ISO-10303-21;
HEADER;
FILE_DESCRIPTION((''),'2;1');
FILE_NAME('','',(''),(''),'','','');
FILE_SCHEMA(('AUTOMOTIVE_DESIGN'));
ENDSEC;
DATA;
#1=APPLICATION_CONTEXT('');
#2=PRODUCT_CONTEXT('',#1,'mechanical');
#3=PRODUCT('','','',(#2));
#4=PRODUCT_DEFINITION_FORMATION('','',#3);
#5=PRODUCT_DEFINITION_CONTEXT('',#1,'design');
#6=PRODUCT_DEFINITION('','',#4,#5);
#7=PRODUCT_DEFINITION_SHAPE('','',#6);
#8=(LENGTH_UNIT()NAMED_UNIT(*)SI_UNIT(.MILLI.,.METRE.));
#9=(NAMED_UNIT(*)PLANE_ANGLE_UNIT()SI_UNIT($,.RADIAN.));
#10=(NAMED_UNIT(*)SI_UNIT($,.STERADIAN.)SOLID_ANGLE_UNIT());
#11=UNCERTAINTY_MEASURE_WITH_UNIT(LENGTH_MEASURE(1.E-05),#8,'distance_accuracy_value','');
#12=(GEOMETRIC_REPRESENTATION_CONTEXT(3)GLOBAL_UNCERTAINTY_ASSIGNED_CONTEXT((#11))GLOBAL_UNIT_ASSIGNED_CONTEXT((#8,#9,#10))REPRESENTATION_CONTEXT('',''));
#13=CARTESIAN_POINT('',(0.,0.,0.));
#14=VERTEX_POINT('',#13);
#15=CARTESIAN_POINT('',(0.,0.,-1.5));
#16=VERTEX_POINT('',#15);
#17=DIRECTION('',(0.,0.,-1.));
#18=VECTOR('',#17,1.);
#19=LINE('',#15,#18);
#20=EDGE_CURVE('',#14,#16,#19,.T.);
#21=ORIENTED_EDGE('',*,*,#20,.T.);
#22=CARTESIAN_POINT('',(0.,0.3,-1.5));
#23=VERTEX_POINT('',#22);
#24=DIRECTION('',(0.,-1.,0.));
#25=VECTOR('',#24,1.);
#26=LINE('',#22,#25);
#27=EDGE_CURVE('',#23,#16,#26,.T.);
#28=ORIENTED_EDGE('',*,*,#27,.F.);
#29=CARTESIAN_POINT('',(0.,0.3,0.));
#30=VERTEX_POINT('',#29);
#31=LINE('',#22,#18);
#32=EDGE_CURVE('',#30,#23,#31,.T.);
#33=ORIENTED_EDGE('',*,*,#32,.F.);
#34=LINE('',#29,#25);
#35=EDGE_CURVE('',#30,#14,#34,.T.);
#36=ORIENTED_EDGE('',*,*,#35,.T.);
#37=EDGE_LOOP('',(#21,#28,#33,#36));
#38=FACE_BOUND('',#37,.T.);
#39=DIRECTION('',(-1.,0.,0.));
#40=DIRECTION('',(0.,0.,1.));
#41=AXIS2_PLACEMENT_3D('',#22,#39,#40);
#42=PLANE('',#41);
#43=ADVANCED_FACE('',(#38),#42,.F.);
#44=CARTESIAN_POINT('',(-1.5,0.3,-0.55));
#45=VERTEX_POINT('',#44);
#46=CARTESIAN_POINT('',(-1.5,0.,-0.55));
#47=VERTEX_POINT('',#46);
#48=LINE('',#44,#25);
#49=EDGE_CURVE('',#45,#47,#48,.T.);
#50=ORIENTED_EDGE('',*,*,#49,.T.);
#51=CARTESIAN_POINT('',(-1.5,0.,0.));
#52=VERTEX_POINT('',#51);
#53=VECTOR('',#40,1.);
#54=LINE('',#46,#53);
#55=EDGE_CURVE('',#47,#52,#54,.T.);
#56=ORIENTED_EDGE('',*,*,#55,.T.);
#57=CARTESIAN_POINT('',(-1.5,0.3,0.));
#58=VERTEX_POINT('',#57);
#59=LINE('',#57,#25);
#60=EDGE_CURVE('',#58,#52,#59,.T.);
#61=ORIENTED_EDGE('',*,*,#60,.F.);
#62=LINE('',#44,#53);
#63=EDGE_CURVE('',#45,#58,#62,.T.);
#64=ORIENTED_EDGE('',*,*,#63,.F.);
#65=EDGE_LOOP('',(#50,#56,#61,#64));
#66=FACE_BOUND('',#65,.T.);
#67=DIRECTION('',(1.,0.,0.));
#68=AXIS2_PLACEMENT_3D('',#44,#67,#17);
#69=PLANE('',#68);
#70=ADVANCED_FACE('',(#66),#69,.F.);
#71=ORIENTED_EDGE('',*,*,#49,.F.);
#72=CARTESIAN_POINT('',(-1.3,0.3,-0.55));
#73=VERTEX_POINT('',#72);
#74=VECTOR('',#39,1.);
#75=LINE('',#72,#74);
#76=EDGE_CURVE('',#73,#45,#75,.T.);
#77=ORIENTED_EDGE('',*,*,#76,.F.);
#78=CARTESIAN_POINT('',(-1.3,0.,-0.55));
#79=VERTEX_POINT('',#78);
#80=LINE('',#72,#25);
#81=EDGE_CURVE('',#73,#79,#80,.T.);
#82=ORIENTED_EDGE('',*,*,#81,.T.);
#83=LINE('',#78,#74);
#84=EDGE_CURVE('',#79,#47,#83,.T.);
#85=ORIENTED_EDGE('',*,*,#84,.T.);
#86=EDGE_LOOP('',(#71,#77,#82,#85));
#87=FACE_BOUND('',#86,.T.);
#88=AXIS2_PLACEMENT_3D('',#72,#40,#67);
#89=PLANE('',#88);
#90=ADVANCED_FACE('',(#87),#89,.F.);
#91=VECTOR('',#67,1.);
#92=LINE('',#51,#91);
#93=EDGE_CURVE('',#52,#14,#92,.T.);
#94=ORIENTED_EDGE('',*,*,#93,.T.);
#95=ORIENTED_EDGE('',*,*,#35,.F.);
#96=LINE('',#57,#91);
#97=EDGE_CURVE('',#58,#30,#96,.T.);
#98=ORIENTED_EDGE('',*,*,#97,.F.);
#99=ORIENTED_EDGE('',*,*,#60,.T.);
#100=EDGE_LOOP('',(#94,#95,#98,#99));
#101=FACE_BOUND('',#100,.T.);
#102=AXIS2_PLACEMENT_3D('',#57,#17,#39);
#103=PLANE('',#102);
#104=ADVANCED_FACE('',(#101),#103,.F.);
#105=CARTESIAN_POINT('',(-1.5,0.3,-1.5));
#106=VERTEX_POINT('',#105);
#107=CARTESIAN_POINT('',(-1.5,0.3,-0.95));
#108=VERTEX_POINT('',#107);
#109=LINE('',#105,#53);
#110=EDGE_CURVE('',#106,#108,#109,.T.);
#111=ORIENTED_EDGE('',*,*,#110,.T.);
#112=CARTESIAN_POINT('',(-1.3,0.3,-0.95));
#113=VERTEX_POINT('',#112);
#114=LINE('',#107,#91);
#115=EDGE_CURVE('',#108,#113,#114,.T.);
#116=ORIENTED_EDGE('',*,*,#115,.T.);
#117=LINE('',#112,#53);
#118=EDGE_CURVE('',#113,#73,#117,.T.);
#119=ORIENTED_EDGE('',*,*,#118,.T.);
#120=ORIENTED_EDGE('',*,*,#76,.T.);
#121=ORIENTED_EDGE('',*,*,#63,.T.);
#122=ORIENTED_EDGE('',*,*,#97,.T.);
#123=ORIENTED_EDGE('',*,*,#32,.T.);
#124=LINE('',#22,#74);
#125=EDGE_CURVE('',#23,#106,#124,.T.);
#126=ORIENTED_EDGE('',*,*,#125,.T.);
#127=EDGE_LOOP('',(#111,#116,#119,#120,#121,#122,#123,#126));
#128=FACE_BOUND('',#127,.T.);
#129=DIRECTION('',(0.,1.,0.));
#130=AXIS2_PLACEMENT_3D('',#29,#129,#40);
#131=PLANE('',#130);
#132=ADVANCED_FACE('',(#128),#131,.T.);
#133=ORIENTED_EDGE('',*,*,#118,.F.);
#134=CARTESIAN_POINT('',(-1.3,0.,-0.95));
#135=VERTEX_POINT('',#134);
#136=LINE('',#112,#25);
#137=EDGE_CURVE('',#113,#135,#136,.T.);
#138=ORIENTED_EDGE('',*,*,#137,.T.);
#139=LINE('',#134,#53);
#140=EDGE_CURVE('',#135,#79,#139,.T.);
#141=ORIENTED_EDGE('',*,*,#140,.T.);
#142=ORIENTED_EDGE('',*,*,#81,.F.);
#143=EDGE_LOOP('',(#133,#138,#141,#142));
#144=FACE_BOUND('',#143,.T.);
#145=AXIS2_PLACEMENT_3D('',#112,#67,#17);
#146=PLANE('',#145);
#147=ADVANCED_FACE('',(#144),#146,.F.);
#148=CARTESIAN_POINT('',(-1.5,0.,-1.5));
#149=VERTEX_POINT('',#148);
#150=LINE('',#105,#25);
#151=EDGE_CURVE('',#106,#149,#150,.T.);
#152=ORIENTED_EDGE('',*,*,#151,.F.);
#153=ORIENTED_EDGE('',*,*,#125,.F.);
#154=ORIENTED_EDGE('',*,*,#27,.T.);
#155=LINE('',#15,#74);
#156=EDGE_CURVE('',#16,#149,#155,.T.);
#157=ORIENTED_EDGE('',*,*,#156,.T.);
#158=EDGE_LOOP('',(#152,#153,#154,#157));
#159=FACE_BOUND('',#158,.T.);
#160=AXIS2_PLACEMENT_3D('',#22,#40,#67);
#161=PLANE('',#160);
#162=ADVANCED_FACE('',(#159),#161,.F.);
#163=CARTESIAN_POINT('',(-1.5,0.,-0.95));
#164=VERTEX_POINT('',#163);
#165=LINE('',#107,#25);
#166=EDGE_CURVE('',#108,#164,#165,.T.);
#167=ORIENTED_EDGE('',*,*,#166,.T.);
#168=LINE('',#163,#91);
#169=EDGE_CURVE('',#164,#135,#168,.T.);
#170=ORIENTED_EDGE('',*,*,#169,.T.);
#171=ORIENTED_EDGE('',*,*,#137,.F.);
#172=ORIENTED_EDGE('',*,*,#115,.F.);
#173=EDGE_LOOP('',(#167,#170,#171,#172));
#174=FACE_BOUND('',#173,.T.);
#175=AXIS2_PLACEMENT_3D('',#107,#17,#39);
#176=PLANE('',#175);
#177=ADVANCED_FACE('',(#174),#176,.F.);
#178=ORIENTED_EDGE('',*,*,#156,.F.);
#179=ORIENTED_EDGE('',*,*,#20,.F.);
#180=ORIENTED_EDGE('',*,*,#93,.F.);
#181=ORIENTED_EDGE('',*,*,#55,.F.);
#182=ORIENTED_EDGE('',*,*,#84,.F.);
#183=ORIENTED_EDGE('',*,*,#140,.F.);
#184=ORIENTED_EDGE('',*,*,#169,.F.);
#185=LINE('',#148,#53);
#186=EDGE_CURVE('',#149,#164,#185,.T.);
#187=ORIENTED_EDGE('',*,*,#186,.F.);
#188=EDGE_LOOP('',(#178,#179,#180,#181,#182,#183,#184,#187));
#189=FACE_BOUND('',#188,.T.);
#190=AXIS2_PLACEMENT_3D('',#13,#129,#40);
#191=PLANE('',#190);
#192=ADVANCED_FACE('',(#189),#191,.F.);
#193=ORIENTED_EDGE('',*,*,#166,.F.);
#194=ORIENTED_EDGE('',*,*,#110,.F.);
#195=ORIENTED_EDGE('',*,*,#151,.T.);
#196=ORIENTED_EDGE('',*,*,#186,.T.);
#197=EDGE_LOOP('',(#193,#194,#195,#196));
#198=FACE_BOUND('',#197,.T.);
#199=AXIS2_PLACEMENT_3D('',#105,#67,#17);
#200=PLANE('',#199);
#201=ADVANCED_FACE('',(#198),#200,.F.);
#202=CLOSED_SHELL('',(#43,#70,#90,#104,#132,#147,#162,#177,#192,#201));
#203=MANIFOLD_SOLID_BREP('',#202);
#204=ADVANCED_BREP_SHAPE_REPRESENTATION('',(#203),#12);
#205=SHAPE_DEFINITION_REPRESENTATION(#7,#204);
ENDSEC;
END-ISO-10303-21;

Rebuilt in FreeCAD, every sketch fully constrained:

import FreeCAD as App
import Part
import Sketcher
from FreeCAD import Vector


def add_polygon(sketch, points):
    """Adds a closed chain of lines whose ends are joined by coincident constraints."""
    first, n = sketch.GeometryCount, len(points)
    for a, b in zip(points, points[1:] + points[:1]):
        sketch.addGeometry(Part.LineSegment(App.Vector(*a, 0), App.Vector(*b, 0)), False)
    for i in range(n):
        sketch.addConstraint(Sketcher.Constraint("Coincident", first + i, 2, first + (i + 1) % n, 1))

doc = App.newDocument("Part")
params = doc.addObject("Spreadsheet::Sheet", "Params")
for row, (alias, value) in enumerate([
    ("sketch1_width", "1.5 mm"),
    ("sketch1_width2", "0.2 mm"),
    ("sketch1_height", "0.4 mm"),
    ("pad1_length", "0.3 mm"),
], start=1):
    params.set(f"A{row}", alias)
    params.set(f"B{row}", "=" + value)
    params.setAlias(f"B{row}", alias)

body = doc.addObject("PartDesign::Body", "Body")

sketch1 = body.newObject("Sketcher::SketchObject", "Sketch")
sketch1.AttachmentSupport = (doc.getObject("XZ_Plane"), [""])
sketch1.MapMode = "FlatFace"
add_polygon(sketch1, [(0, -1.5), (-1.5, -1.5), (-1.5, -0.95), (-1.3, -0.95), (-1.3, -0.55), (-1.5, -0.55), (-1.5, 0), (0, 0)])
sketch1.addConstraint(Sketcher.Constraint("Horizontal", 0))
sketch1.addConstraint(Sketcher.Constraint("Vertical", 1))
sketch1.addConstraint(Sketcher.Constraint("Horizontal", 2))
sketch1.addConstraint(Sketcher.Constraint("Vertical", 3))
sketch1.addConstraint(Sketcher.Constraint("Horizontal", 4))
sketch1.addConstraint(Sketcher.Constraint("Vertical", 5))
sketch1.addConstraint(Sketcher.Constraint("Horizontal", 6))
sketch1.addConstraint(Sketcher.Constraint("Vertical", 7))
sketch1.addConstraint(Sketcher.Constraint("Coincident", 6, 2, -1, 1))
sketch1.addConstraint(Sketcher.Constraint("Vertical", 1, 2, 4, 2))
sketch1.addConstraint(Sketcher.Constraint("Equal", 1, 5))
sketch1.addConstraint(Sketcher.Constraint("Equal", 6, 7))
sketch1.addConstraint(Sketcher.Constraint("DistanceX", 0, 2, 0, 1, 1.5))
sketch1.addConstraint(Sketcher.Constraint("DistanceX", 2, 1, 2, 2, 0.2))
sketch1.addConstraint(Sketcher.Constraint("DistanceY", 3, 1, 3, 2, 0.4))
sketch1.setExpression("Constraints[20]", "Params.sketch1_width")
sketch1.setExpression("Constraints[21]", "Params.sketch1_width2")
sketch1.setExpression("Constraints[22]", "Params.sketch1_height")
pad1 = body.newObject("PartDesign::Pad", "Pad")
pad1.Profile = sketch1
pad1.setExpression("Length", "Params.pad1_length")
pad1.Reversed = True

doc.recompute()
